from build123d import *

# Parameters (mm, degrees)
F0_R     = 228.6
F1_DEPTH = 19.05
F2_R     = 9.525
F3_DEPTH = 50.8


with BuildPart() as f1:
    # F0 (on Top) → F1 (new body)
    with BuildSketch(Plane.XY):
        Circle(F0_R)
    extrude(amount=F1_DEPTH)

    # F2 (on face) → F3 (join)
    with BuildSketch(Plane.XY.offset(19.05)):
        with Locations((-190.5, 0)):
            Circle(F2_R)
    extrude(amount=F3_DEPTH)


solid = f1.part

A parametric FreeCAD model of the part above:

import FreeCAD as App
import Part
import Sketcher
Q = App.Units.Quantity

doc = App.newDocument("Part")
params = doc.addObject("Spreadsheet::Sheet", "Params")
for row, (alias, value) in enumerate([
    ("sketch1_diameter", "18 in"),
    ("pad1_length", "0.75 in"),
    ("sketch2_diameter", "0.75 in"),
    ("pad2_length", "2 in"),
], start=1):
    params.set(f"A{row}", alias)
    params.set(f"B{row}", "=" + value)
    params.setAlias(f"B{row}", alias)

body = doc.addObject("PartDesign::Body", "Body")

sketch1 = doc.addObject("Sketcher::SketchObject", "Sketch")
body.addObject(sketch1)
sketch1.AttachmentSupport = (doc.XY_Plane, [""])
sketch1.MapMode = "FlatFace"
sketch1.addGeometry(Part.Circle(App.Vector(0, 0, 0), App.Vector(0, 0, 1), 229), False)
sketch1.addConstraint(Sketcher.Constraint("Coincident", 0, 3, -1, 1))
sketch1.addConstraint(Sketcher.Constraint("Diameter", 0, Q("18 in")))
sketch1.setExpression("Constraints[1]", "Params.sketch1_diameter")
pad1 = doc.addObject("PartDesign::Pad", "Pad")
body.addObject(pad1)
pad1.Profile = sketch1
pad1.setExpression("Length", "Params.pad1_length")

sketch2 = doc.addObject("Sketcher::SketchObject", "Sketch001")
body.addObject(sketch2)
sketch2.AttachmentSupport = (doc.XY_Plane, [""])
sketch2.MapMode = "FlatFace"
sketch2.AttachmentOffset = App.Placement(App.Vector(0, 0, 0.75 * 25.4), App.Rotation())
sketch2.addGeometry(Part.Circle(App.Vector(-190, 0, 0), App.Vector(0, 0, 1), 10), False)
sketch2.addConstraint(Sketcher.Constraint("PointOnObject", 0, 3, -1))
sketch2.addConstraint(Sketcher.Constraint("Diameter", 0, Q("0.75 in")))
sketch2.addConstraint(Sketcher.Constraint("DistanceX", 0, 3, -1, 1, Q("7.5 in")))
sketch2.setExpression("Constraints[1]", "Params.sketch2_diameter")
pad2 = doc.addObject("PartDesign::Pad", "Pad001")
body.addObject(pad2)
pad2.Profile = sketch2
pad2.setExpression("Length", "Params.pad2_length")

doc.recompute()
